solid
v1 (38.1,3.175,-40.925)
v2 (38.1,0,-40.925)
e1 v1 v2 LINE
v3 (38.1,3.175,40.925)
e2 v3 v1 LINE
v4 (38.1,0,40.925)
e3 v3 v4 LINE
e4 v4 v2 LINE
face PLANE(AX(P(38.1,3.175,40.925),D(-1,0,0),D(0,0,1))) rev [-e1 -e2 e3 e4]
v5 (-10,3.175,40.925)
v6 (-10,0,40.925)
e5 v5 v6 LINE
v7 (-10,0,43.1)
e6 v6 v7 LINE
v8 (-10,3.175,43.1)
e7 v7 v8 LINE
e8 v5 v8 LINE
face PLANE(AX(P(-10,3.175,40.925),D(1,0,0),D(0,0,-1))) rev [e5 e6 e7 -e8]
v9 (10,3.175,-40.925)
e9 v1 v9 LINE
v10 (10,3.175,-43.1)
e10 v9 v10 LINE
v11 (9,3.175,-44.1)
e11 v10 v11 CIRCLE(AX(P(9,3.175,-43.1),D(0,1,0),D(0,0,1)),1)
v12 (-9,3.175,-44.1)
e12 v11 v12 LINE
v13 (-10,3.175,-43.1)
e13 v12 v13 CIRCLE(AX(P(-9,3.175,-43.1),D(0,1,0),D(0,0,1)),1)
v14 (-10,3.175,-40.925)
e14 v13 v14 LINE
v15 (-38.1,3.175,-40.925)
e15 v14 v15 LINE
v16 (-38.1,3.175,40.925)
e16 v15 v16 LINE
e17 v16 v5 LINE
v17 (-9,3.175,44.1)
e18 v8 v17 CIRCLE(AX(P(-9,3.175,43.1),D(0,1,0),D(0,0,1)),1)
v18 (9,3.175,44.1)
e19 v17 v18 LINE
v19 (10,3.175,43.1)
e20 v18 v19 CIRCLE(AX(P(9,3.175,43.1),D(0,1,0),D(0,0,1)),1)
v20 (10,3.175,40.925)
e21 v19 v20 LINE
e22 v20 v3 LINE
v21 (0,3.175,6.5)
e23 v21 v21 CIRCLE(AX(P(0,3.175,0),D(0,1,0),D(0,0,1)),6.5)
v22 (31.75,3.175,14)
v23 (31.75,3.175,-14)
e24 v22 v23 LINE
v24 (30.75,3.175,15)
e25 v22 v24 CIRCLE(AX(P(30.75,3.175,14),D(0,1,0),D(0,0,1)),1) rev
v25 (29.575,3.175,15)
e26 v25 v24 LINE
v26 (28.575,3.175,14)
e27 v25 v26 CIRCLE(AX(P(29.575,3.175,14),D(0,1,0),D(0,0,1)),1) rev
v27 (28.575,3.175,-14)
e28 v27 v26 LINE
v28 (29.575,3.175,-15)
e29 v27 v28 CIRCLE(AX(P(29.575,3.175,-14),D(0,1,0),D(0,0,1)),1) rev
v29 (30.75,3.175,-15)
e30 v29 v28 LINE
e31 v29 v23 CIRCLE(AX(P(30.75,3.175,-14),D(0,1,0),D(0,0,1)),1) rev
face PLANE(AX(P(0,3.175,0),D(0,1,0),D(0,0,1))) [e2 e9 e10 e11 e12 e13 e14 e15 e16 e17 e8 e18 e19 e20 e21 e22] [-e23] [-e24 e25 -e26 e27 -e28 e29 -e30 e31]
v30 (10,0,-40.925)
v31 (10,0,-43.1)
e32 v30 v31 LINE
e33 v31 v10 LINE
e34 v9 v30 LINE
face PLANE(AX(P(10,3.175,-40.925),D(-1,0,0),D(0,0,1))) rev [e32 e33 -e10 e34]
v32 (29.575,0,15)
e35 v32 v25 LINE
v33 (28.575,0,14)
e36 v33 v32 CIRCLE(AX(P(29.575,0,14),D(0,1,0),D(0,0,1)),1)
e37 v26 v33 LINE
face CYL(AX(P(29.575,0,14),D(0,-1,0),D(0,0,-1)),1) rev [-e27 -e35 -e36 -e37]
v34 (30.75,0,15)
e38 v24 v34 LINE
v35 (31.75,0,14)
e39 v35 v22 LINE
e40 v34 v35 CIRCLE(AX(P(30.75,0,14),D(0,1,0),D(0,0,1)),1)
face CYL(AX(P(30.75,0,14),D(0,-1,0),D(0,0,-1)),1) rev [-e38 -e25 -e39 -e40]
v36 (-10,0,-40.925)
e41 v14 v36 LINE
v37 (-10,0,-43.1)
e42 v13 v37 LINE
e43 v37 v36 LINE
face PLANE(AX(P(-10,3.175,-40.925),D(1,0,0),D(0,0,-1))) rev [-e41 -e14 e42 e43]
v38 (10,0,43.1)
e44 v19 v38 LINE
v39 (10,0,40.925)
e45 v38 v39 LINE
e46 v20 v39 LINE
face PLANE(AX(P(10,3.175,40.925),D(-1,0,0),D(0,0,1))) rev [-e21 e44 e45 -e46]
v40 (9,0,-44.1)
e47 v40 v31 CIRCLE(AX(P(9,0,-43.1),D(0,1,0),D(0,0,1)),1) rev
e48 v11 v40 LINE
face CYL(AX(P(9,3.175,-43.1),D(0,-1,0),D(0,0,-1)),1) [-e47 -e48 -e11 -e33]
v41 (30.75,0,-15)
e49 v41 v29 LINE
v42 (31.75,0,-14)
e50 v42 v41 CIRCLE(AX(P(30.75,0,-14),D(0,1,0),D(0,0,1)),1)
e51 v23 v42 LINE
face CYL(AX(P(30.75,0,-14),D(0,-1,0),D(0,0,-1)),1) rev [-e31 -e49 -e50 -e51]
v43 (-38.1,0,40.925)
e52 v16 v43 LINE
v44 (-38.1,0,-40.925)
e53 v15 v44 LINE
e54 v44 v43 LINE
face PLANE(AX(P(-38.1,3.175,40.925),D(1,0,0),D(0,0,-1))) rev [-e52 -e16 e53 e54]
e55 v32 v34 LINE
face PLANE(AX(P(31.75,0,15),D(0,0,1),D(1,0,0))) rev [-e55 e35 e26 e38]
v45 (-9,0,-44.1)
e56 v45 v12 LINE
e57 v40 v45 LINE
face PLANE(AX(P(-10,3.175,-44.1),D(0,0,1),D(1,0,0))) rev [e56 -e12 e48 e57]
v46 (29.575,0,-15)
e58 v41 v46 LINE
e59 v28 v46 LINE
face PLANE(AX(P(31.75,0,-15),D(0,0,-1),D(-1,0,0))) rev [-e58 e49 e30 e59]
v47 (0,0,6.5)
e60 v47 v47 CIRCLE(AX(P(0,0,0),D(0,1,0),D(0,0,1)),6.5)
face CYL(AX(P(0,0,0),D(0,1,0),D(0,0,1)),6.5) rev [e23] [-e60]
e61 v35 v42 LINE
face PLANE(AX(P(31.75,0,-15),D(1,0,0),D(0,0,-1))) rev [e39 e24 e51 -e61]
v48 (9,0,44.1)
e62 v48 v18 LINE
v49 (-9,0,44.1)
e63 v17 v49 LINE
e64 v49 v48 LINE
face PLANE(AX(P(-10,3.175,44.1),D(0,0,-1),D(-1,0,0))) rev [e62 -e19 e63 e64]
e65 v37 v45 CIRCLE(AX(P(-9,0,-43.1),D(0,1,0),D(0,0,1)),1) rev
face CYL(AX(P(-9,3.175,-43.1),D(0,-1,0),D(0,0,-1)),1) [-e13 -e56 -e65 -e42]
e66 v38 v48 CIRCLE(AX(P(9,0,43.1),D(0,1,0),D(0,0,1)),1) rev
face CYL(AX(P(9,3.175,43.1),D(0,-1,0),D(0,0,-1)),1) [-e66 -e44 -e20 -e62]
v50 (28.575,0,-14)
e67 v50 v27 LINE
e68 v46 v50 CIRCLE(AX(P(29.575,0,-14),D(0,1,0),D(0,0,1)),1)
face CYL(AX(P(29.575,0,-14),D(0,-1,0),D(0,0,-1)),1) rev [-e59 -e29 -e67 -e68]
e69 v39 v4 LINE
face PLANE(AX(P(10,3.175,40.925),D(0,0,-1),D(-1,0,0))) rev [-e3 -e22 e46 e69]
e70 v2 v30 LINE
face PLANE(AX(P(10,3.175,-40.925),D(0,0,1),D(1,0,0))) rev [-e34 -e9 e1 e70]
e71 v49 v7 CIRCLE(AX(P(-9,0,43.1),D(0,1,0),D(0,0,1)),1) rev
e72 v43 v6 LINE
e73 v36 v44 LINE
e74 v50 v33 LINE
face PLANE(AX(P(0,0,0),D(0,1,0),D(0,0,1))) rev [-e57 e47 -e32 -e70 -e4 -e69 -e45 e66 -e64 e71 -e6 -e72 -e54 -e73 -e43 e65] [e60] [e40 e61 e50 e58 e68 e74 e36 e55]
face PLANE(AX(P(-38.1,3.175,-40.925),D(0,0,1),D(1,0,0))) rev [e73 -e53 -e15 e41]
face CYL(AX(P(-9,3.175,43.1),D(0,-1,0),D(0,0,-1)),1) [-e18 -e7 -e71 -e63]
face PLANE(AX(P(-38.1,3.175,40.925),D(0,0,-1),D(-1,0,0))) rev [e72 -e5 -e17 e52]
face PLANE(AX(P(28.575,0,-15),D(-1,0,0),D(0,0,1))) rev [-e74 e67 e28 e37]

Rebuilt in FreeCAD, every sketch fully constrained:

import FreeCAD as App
import Part
import Sketcher


def edges_at(feature, points):
    """Names of the edges that pass closest to the given points."""
    edges = feature.Shape.Edges
    near = lambda p: min(range(len(edges)), key=lambda i: edges[i].distToShape(Part.Vertex(*p))[0])
    return sorted({f"Edge{near(p) + 1}" for p in points})

doc = App.newDocument("Part")
body = doc.addObject("PartDesign::Body", "Body")

sketch1 = body.newObject("Sketcher::SketchObject", "Sketch")
sketch1.AttachmentSupport = (doc.getObject("XZ_Plane"), [""])
sketch1.MapMode = "FlatFace"
sketch1.addGeometry(Part.LineSegment(App.Vector(-38.1, 40.9, 0), App.Vector(-10, 40.9, 0)), False)
sketch1.addGeometry(Part.LineSegment(App.Vector(-10, 40.9, 0), App.Vector(-10, 44.1, 0)), False)
sketch1.addGeometry(Part.LineSegment(App.Vector(-10, 44.1, 0), App.Vector(10, 44.1, 0)), False)
sketch1.addGeometry(Part.LineSegment(App.Vector(10, 44.1, 0), App.Vector(10, 40.9, 0)), False)
sketch1.addGeometry(Part.LineSegment(App.Vector(10, 40.9, 0), App.Vector(38.1, 40.9, 0)), False)
sketch1.addGeometry(Part.LineSegment(App.Vector(38.1, 40.9, 0), App.Vector(38.1, -40.9, 0)), False)
sketch1.addGeometry(Part.LineSegment(App.Vector(38.1, -40.9, 0), App.Vector(10, -40.9, 0)), False)
sketch1.addGeometry(Part.LineSegment(App.Vector(10, -40.9, 0), App.Vector(10, -44.1, 0)), False)
sketch1.addGeometry(Part.LineSegment(App.Vector(10, -44.1, 0), App.Vector(-10, -44.1, 0)), False)
sketch1.addGeometry(Part.LineSegment(App.Vector(-10, -44.1, 0), App.Vector(-10, -40.9, 0)), False)
sketch1.addGeometry(Part.LineSegment(App.Vector(-10, -40.9, 0), App.Vector(-38.1, -40.9, 0)), False)
sketch1.addGeometry(Part.LineSegment(App.Vector(-38.1, -40.9, 0), App.Vector(-38.1, 40.9, 0)), False)
sketch1.addConstraint(Sketcher.Constraint("Coincident", 0, 2, 1, 1))
sketch1.addConstraint(Sketcher.Constraint("Coincident", 1, 2, 2, 1))
sketch1.addConstraint(Sketcher.Constraint("Coincident", 2, 2, 3, 1))
sketch1.addConstraint(Sketcher.Constraint("Coincident", 3, 2, 4, 1))
sketch1.addConstraint(Sketcher.Constraint("Coincident", 4, 2, 5, 1))
sketch1.addConstraint(Sketcher.Constraint("Coincident", 5, 2, 6, 1))
sketch1.addConstraint(Sketcher.Constraint("Coincident", 6, 2, 7, 1))
sketch1.addConstraint(Sketcher.Constraint("Coincident", 7, 2, 8, 1))
sketch1.addConstraint(Sketcher.Constraint("Coincident", 8, 2, 9, 1))
sketch1.addConstraint(Sketcher.Constraint("Coincident", 9, 2, 10, 1))
sketch1.addConstraint(Sketcher.Constraint("Coincident", 10, 2, 11, 1))
sketch1.addConstraint(Sketcher.Constraint("Coincident", 11, 2, 0, 1))
sketch1.addConstraint(Sketcher.Constraint("Horizontal", 0))
sketch1.addConstraint(Sketcher.Constraint("Vertical", 1))
sketch1.addConstraint(Sketcher.Constraint("Horizontal", 2))
sketch1.addConstraint(Sketcher.Constraint("Vertical", 3))
sketch1.addConstraint(Sketcher.Constraint("Horizontal", 4))
sketch1.addConstraint(Sketcher.Constraint("Vertical", 5))
sketch1.addConstraint(Sketcher.Constraint("Horizontal", 6))
sketch1.addConstraint(Sketcher.Constraint("Vertical", 7))
sketch1.addConstraint(Sketcher.Constraint("Horizontal", 8))
sketch1.addConstraint(Sketcher.Constraint("Vertical", 9))
sketch1.addConstraint(Sketcher.Constraint("Horizontal", 10))
sketch1.addConstraint(Sketcher.Constraint("Vertical", 11))
sketch1.addConstraint(Sketcher.Constraint("Symmetric", 0, 2, 6, 2, -1, 1))
sketch1.addConstraint(Sketcher.Constraint("Symmetric", 2, 2, 8, 2, -1, 1))
sketch1.addConstraint(Sketcher.Constraint("Symmetric", 4, 2, 10, 2, -1, 1))
sketch1.addConstraint(Sketcher.Constraint("Symmetric", 0, 2, 3, 2, -2))
sketch1.addConstraint(Sketcher.Constraint("DistanceX", 2, 1, 2, 2, 20.0))
sketch1.addConstraint(Sketcher.Constraint("DistanceX", 0, 1, 0, 2, 28.1))
sketch1.addConstraint(Sketcher.Constraint("DistanceY", 5, 2, 5, 1, 81.85))
sketch1.addConstraint(Sketcher.Constraint("DistanceY", -1, 1, 1, 2, 44.1))
pad1 = body.newObject("PartDesign::Pad", "Pad")
pad1.Profile = sketch1
pad1.Length = 3.175
pad1.Reversed = True

sketch2 = body.newObject("Sketcher::SketchObject", "Sketch001")
sketch2.AttachmentSupport = (doc.getObject("XZ_Plane"), [""])
sketch2.MapMode = "FlatFace"
sketch2.AttachmentOffset = App.Placement(App.Vector(0, 0, -3.175), App.Rotation())
sketch2.addGeometry(Part.Circle(App.Vector(0, 0, 0), App.Vector(0, 0, 1), 6.5), False)
sketch2.addGeometry(Part.LineSegment(App.Vector(28.6, -15, 0), App.Vector(28.6, 15, 0)), False)
sketch2.addGeometry(Part.LineSegment(App.Vector(28.6, 15, 0), App.Vector(31.8, 15, 0)), False)
sketch2.addGeometry(Part.LineSegment(App.Vector(31.8, 15, 0), App.Vector(31.8, -15, 0)), False)
sketch2.addGeometry(Part.LineSegment(App.Vector(31.8, -15, 0), App.Vector(28.6, -15, 0)), False)
sketch2.addConstraint(Sketcher.Constraint("Coincident", 1, 2, 2, 1))
sketch2.addConstraint(Sketcher.Constraint("Coincident", 2, 2, 3, 1))
sketch2.addConstraint(Sketcher.Constraint("Coincident", 3, 2, 4, 1))
sketch2.addConstraint(Sketcher.Constraint("Coincident", 4, 2, 1, 1))
sketch2.addConstraint(Sketcher.Constraint("Vertical", 1))
sketch2.addConstraint(Sketcher.Constraint("Horizontal", 2))
sketch2.addConstraint(Sketcher.Constraint("Vertical", 3))
sketch2.addConstraint(Sketcher.Constraint("Horizontal", 4))
sketch2.addConstraint(Sketcher.Constraint("Coincident", 0, 3, -1, 1))
sketch2.addConstraint(Sketcher.Constraint("Diameter", 0, 13.0))
sketch2.addConstraint(Sketcher.Constraint("DistanceY", 1, 1, 1, 2, 30.0))
sketch2.addConstraint(Sketcher.Constraint("DistanceY", -1, 1, 1, 2, 15.0))
sketch2.addConstraint(Sketcher.Constraint("DistanceX", 2, 1, 2, 2, 3.175))
sketch2.addConstraint(Sketcher.Constraint("DistanceX", -1, 1, 2, 2, 31.75))
pocket1 = body.newObject("PartDesign::Pocket", "Pocket")
pocket1.Profile = sketch2
pocket1.Type = "ThroughAll"
pocket1.Reversed = True
doc.recompute()

fillet = body.newObject("PartDesign::Fillet", "Fillet")
fillet.Base = (pocket1, edges_at(pocket1, [
    (10, 1.587, 44.1),
    (-10, 1.587, 44.1),
    (-10, 1.587, -44.1),
    (10, 1.587, -44.1),
    (28.575, 1.587, 15),
    (28.575, 1.587, -15),
    (31.75, 1.587, -15),
    (31.75, 1.587, 15),
]))
fillet.Radius = 1

doc.recompute()
